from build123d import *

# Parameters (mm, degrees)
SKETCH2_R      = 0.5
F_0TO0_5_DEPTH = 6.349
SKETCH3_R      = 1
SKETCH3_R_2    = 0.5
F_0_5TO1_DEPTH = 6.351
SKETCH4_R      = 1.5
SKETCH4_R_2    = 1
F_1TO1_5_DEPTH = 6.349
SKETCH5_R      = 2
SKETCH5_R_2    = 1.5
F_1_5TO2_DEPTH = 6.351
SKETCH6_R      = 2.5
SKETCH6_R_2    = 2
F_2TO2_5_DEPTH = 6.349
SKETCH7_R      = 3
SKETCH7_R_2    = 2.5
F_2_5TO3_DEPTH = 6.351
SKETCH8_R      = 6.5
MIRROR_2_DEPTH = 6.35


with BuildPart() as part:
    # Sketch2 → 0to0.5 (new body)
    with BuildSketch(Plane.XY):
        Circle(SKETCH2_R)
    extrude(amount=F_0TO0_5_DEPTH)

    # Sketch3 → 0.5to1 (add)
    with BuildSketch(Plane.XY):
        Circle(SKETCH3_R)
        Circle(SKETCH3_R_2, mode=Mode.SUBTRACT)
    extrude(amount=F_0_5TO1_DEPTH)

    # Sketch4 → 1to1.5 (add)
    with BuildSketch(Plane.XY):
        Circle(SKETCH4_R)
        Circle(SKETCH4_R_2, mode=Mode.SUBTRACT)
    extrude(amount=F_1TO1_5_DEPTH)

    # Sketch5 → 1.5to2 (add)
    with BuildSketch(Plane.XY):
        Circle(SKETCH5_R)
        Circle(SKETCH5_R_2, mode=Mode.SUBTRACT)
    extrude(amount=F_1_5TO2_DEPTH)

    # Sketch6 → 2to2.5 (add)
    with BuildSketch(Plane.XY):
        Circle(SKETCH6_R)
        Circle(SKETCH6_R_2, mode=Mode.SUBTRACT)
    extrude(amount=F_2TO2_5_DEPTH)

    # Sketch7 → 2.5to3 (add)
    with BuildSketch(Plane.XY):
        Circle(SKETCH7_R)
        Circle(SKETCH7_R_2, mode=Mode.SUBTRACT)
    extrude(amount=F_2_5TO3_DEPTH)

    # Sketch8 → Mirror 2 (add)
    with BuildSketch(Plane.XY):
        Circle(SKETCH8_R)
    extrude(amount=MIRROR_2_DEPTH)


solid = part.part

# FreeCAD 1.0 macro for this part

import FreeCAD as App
import Part
import Sketcher
from FreeCAD import Vector

doc = App.newDocument("Part")
params = doc.addObject("Spreadsheet::Sheet", "Params")
for row, (alias, value) in enumerate([
    ("sketch1_diameter", "1 mm"),
    ("pad1_length", "6.349 mm"),
    ("sketch2_diameter", "2 mm"),
    ("sketch2_diameter2", "1 mm"),
    ("pad2_length", "6.351 mm"),
    ("sketch3_diameter", "3 mm"),
    ("sketch3_diameter2", "2 mm"),
    ("pad3_length", "6.349 mm"),
    ("sketch4_diameter", "4 mm"),
    ("sketch4_diameter2", "3 mm"),
    ("pad4_length", "6.351 mm"),
    ("sketch5_diameter", "5 mm"),
    ("sketch5_diameter2", "4 mm"),
    ("pad5_length", "6.349 mm"),
    ("sketch6_diameter", "6 mm"),
    ("sketch6_diameter2", "5 mm"),
    ("pad6_length", "6.351 mm"),
    ("sketch7_diameter", "13 mm"),
    ("pad7_length", "6.35 mm"),
], start=1):
    params.set(f"A{row}", alias)
    params.set(f"B{row}", "=" + value)
    params.setAlias(f"B{row}", alias)

body = doc.addObject("PartDesign::Body", "Body")

# Sketch on XY plane
sketch1 = body.newObject("Sketcher::SketchObject", "Sketch")
sketch1.AttachmentSupport = (doc.getObject("XY_Plane"), [""])
sketch1.MapMode = "FlatFace"
sketch1.addGeometry(Part.Circle(Vector(0, 0, 0), Vector(0, 0, 1), 0.5), False)
sketch1.addConstraint([
    Sketcher.Constraint("Coincident", 0, 3, -1, 1),
    Sketcher.Constraint("Diameter", 0, 1.0),
])
sketch1.setExpression("Constraints[1]", "Params.sketch1_diameter")
pad1 = body.newObject("PartDesign::Pad", "Pad")
pad1.Profile = sketch1
pad1.setExpression("Length", "Params.pad1_length")

# Sketch on XY plane
sketch2 = body.newObject("Sketcher::SketchObject", "Sketch001")
sketch2.AttachmentSupport = (doc.getObject("XY_Plane"), [""])
sketch2.MapMode = "FlatFace"
sketch2.addGeometry([
    Part.Circle(Vector(0, 0, 0), Vector(0, 0, 1), 1),
    Part.Circle(Vector(0, 0, 0), Vector(0, 0, 1), 0.5),
], False)
sketch2.addConstraint([
    Sketcher.Constraint("Coincident", 0, 3, -1, 1),
    Sketcher.Constraint("Coincident", 1, 3, -1, 1),
    Sketcher.Constraint("Diameter", 0, 2.0),
    Sketcher.Constraint("Diameter", 1, 1.0),
])
sketch2.setExpression("Constraints[2]", "Params.sketch2_diameter")
sketch2.setExpression("Constraints[3]", "Params.sketch2_diameter2")
pad2 = body.newObject("PartDesign::Pad", "Pad001")
pad2.Profile = sketch2
pad2.setExpression("Length", "Params.pad2_length")

# Sketch on XY plane
sketch3 = body.newObject("Sketcher::SketchObject", "Sketch002")
sketch3.AttachmentSupport = (doc.getObject("XY_Plane"), [""])
sketch3.MapMode = "FlatFace"
sketch3.addGeometry([
    Part.Circle(Vector(0, 0, 0), Vector(0, 0, 1), 1.5),
    Part.Circle(Vector(0, 0, 0), Vector(0, 0, 1), 1),
], False)
sketch3.addConstraint([
    Sketcher.Constraint("Coincident", 0, 3, -1, 1),
    Sketcher.Constraint("Coincident", 1, 3, -1, 1),
    Sketcher.Constraint("Diameter", 0, 3.0),
    Sketcher.Constraint("Diameter", 1, 2.0),
])
sketch3.setExpression("Constraints[2]", "Params.sketch3_diameter")
sketch3.setExpression("Constraints[3]", "Params.sketch3_diameter2")
pad3 = body.newObject("PartDesign::Pad", "Pad002")
pad3.Profile = sketch3
pad3.setExpression("Length", "Params.pad3_length")

# Sketch on XY plane
sketch4 = body.newObject("Sketcher::SketchObject", "Sketch003")
sketch4.AttachmentSupport = (doc.getObject("XY_Plane"), [""])
sketch4.MapMode = "FlatFace"
sketch4.addGeometry([
    Part.Circle(Vector(0, 0, 0), Vector(0, 0, 1), 2),
    Part.Circle(Vector(0, 0, 0), Vector(0, 0, 1), 1.5),
], False)
sketch4.addConstraint([
    Sketcher.Constraint("Coincident", 0, 3, -1, 1),
    Sketcher.Constraint("Coincident", 1, 3, -1, 1),
    Sketcher.Constraint("Diameter", 0, 4.0),
    Sketcher.Constraint("Diameter", 1, 3.0),
])
sketch4.setExpression("Constraints[2]", "Params.sketch4_diameter")
sketch4.setExpression("Constraints[3]", "Params.sketch4_diameter2")
pad4 = body.newObject("PartDesign::Pad", "Pad003")
pad4.Profile = sketch4
pad4.setExpression("Length", "Params.pad4_length")

# Sketch on XY plane
sketch5 = body.newObject("Sketcher::SketchObject", "Sketch004")
sketch5.AttachmentSupport = (doc.getObject("XY_Plane"), [""])
sketch5.MapMode = "FlatFace"
sketch5.addGeometry([
    Part.Circle(Vector(0, 0, 0), Vector(0, 0, 1), 2.5),
    Part.Circle(Vector(0, 0, 0), Vector(0, 0, 1), 2),
], False)
sketch5.addConstraint([
    Sketcher.Constraint("Coincident", 0, 3, -1, 1),
    Sketcher.Constraint("Coincident", 1, 3, -1, 1),
    Sketcher.Constraint("Diameter", 0, 5.0),
    Sketcher.Constraint("Diameter", 1, 4.0),
])
sketch5.setExpression("Constraints[2]", "Params.sketch5_diameter")
sketch5.setExpression("Constraints[3]", "Params.sketch5_diameter2")
pad5 = body.newObject("PartDesign::Pad", "Pad004")
pad5.Profile = sketch5
pad5.setExpression("Length", "Params.pad5_length")

# Sketch on XY plane
sketch6 = body.newObject("Sketcher::SketchObject", "Sketch005")
sketch6.AttachmentSupport = (doc.getObject("XY_Plane"), [""])
sketch6.MapMode = "FlatFace"
sketch6.addGeometry([
    Part.Circle(Vector(0, 0, 0), Vector(0, 0, 1), 3),
    Part.Circle(Vector(0, 0, 0), Vector(0, 0, 1), 2.5),
], False)
sketch6.addConstraint([
    Sketcher.Constraint("Coincident", 0, 3, -1, 1),
    Sketcher.Constraint("Coincident", 1, 3, -1, 1),
    Sketcher.Constraint("Diameter", 0, 6.0),
    Sketcher.Constraint("Diameter", 1, 5.0),
])
sketch6.setExpression("Constraints[2]", "Params.sketch6_diameter")
sketch6.setExpression("Constraints[3]", "Params.sketch6_diameter2")
pad6 = body.newObject("PartDesign::Pad", "Pad005")
pad6.Profile = sketch6
pad6.setExpression("Length", "Params.pad6_length")

# Sketch on XY plane
sketch7 = body.newObject("Sketcher::SketchObject", "Sketch006")
sketch7.AttachmentSupport = (doc.getObject("XY_Plane"), [""])
sketch7.MapMode = "FlatFace"
sketch7.addGeometry(Part.Circle(Vector(0, 0, 0), Vector(0, 0, 1), 6), False)
sketch7.addConstraint([
    Sketcher.Constraint("Coincident", 0, 3, -1, 1),
    Sketcher.Constraint("Diameter", 0, 13.0),
])
sketch7.setExpression("Constraints[1]", "Params.sketch7_diameter")
pad7 = body.newObject("PartDesign::Pad", "Pad006")
pad7.Profile = sketch7
pad7.setExpression("Length", "Params.pad7_length")

doc.recompute()
